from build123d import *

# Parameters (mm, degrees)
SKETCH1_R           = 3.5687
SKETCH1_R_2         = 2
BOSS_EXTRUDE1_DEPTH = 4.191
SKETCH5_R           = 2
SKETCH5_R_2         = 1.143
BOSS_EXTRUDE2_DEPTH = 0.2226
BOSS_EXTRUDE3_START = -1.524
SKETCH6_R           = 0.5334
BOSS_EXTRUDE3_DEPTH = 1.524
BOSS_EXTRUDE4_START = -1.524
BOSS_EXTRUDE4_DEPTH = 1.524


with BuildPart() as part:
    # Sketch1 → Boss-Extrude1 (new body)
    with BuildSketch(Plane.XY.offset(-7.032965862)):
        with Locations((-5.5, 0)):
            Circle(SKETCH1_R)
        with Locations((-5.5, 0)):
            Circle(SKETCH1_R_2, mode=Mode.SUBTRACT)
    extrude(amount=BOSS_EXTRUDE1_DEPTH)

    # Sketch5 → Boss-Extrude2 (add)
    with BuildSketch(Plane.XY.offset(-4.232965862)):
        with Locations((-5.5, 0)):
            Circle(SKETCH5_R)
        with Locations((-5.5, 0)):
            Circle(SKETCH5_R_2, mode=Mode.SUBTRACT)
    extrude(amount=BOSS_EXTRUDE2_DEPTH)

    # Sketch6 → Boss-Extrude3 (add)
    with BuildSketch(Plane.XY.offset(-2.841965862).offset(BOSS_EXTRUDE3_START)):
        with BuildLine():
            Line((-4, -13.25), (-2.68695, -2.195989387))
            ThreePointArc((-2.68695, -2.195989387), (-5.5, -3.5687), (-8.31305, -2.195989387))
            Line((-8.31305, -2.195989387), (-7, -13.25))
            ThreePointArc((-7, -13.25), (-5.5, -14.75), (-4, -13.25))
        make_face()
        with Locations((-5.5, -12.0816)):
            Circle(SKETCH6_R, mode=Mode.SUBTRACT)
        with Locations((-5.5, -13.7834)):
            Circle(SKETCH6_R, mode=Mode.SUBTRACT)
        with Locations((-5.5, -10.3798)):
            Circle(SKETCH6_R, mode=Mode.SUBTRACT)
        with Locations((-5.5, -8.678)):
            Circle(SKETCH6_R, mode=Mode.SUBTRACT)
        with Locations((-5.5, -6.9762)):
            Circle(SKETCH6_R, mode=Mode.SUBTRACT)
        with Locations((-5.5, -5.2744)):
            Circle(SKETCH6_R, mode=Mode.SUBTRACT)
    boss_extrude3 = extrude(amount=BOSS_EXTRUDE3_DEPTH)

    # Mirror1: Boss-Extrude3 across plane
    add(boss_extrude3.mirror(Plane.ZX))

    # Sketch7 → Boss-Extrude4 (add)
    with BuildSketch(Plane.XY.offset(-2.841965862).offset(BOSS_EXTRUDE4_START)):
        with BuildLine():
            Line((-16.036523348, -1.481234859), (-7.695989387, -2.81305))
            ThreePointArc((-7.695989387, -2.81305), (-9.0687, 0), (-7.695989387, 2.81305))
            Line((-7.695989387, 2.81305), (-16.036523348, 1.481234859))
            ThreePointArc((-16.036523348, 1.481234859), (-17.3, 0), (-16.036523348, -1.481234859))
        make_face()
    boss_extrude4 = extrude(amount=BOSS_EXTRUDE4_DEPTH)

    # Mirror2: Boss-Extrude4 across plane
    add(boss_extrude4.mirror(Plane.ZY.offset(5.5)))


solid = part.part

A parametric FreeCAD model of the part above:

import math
import FreeCAD as App
import Part
import Sketcher
from FreeCAD import Vector
Q = App.Units.Quantity

doc = App.newDocument("Part")
body = doc.addObject("PartDesign::Body", "Body")

# Sketch on XY plane
sketch1 = body.newObject("Sketcher::SketchObject", "Sketch")
sketch1.AttachmentSupport = (doc.getObject("XY_Plane"), [""])
sketch1.MapMode = "FlatFace"
sketch1.AttachmentOffset = App.Placement(Vector(0, 0, -7.032966), App.Rotation())
sketch1.addGeometry([
    Part.Circle(Vector(-5.5, 0, 0), Vector(0, 0, 1), 3.6),
    Part.Circle(Vector(-5.5, 0, 0), Vector(0, 0, 1), 2),
], False)
sketch1.addConstraint([
    Sketcher.Constraint("Coincident", 1, 3, 0, 3),
    Sketcher.Constraint("PointOnObject", 0, 3, -1),
    Sketcher.Constraint("Diameter", 0, Q("0.281 in")),
    Sketcher.Constraint("Diameter", 1, 4.0),
    Sketcher.Constraint("DistanceX", 0, 3, -1, 1, 5.5),
])
pad1 = body.newObject("PartDesign::Pad", "Pad")
pad1.Profile = sketch1
pad1.Length = Q("0.165 in")

# Sketch on XY plane
sketch2 = body.newObject("Sketcher::SketchObject", "Sketch001")
sketch2.AttachmentSupport = (doc.getObject("XY_Plane"), [""])
sketch2.MapMode = "FlatFace"
sketch2.AttachmentOffset = App.Placement(Vector(0, 0, -4.232966), App.Rotation())
sketch2.addGeometry([
    Part.Circle(Vector(-5.5, 0, 0), Vector(0, 0, 1), 2),
    Part.Circle(Vector(-5.5, 0, 0), Vector(0, 0, 1), 1.1),
], False)
sketch2.addConstraint([
    Sketcher.Constraint("Coincident", 1, 3, 0, 3),
    Sketcher.Constraint("PointOnObject", 0, 3, -1),
    Sketcher.Constraint("Diameter", 1, Q("0.09 in")),
    Sketcher.Constraint("Diameter", 0, 4.0),
    Sketcher.Constraint("DistanceX", 0, 3, -1, 1, 5.5),
])
pad2 = body.newObject("PartDesign::Pad", "Pad001")
pad2.Profile = sketch2
pad2.Length = 0.2226

# Sketch on XY plane
sketch3 = body.newObject("Sketcher::SketchObject", "Sketch002")
sketch3.AttachmentSupport = (doc.getObject("XY_Plane"), [""])
sketch3.MapMode = "FlatFace"
sketch3.AttachmentOffset = App.Placement(Vector(0, 0, -4.365966), App.Rotation())
sketch3.addGeometry([
    Part.LineSegment(Vector(-4, -13.2, 0), Vector(-2.7, -2.2, 0)),  # 0
    Part.ArcOfCircle(Part.Circle(Vector(-5.5, 0, 0), Vector(0, 0, 1), 3.6), math.radians(-142), math.radians(-38)),  # 1
    Part.LineSegment(Vector(-8.3, -2.2, 0), Vector(-7, -13.2, 0)),  # 2
    Part.ArcOfCircle(Part.Circle(Vector(-5.5, -13.2, 0), Vector(0, 0, 1), 1.5), math.radians(180), math.radians(360)),  # 3
    Part.Circle(Vector(-5.5, -13.8, 0), Vector(0, 0, 1), 0.5),  # 4
    Part.Circle(Vector(-5.5, -12.1, 0), Vector(0, 0, 1), 0.5),  # 5
    Part.Circle(Vector(-5.5, -10.4, 0), Vector(0, 0, 1), 0.5),  # 6
    Part.Circle(Vector(-5.5, -8.7, 0), Vector(0, 0, 1), 0.5),  # 7
    Part.Circle(Vector(-5.5, -7, 0), Vector(0, 0, 1), 0.5),  # 8
    Part.Circle(Vector(-5.5, -5.3, 0), Vector(0, 0, 1), 0.5),  # 9
], False)
sketch3.addConstraint([
    Sketcher.Constraint("Coincident", 0, 2, 1, 2),
    Sketcher.Constraint("Coincident", 1, 1, 2, 1),
    Sketcher.Constraint("Coincident", 2, 2, 3, 1),
    Sketcher.Constraint("Coincident", 3, 2, 0, 1),
    Sketcher.Constraint("Equal", 4, 5),
    Sketcher.Constraint("Equal", 5, 6),
    Sketcher.Constraint("Equal", 6, 7),
    Sketcher.Constraint("Equal", 7, 8),
    Sketcher.Constraint("Equal", 8, 9),
    Sketcher.Constraint("PointOnObject", 1, 3, -1),
    Sketcher.Constraint("Horizontal", 0, 2, 1, 1),
    Sketcher.Constraint("Horizontal", 3, 3, 2, 2),
    Sketcher.Constraint("Horizontal", 2, 2, 3, 2),
    Sketcher.Constraint("Vertical", 1, 3, 3, 3),
    Sketcher.Constraint("Vertical", 3, 3, 4, 3),
    Sketcher.Constraint("Vertical", 4, 3, 5, 3),
    Sketcher.Constraint("Vertical", 5, 3, 6, 3),
    Sketcher.Constraint("Vertical", 6, 3, 7, 3),
    Sketcher.Constraint("Vertical", 7, 3, 8, 3),
    Sketcher.Constraint("Vertical", 8, 3, 9, 3),
    Sketcher.Constraint("Diameter", 4, Q("0.042 in")),
    Sketcher.Constraint("Radius", 1, Q("0.1405 in")),
    Sketcher.Constraint("Radius", 3, 1.5),
    Sketcher.Constraint("DistanceY", 3, 3, 7, 3, Q("0.18 in")),
    Sketcher.Constraint("DistanceY", 4, 3, 3, 3, Q("0.021 in")),
    Sketcher.Constraint("DistanceY", 3, 3, 5, 3, Q("0.046 in")),
    Sketcher.Constraint("DistanceY", 5, 3, 6, 3, Q("0.067 in")),
    Sketcher.Constraint("DistanceY", 7, 3, 8, 3, Q("0.067 in")),
    Sketcher.Constraint("DistanceY", 8, 3, 9, 3, Q("0.067 in")),
    Sketcher.Constraint("DistanceX", 1, 1, 0, 2, Q("0.2215 in")),
    Sketcher.Constraint("DistanceX", 1, 3, -1, 1, 5.5),
    Sketcher.Constraint("DistanceY", 3, 3, -1, 1, 13.25),
])
pad3 = body.newObject("PartDesign::Pad", "Pad002")
pad3.Profile = sketch3
pad3.Length = Q("0.06 in")
doc.recompute()

mirrored = body.newObject("PartDesign::Mirrored", "Mirrored")
mirrored.Originals = [pad3]
mirrored.MirrorPlane = (doc.getObject("XZ_Plane"), [""])
body.Tip = mirrored

# Sketch on XY plane
sketch4 = body.newObject("Sketcher::SketchObject", "Sketch003")
sketch4.AttachmentSupport = (doc.getObject("XY_Plane"), [""])
sketch4.MapMode = "FlatFace"
sketch4.AttachmentOffset = App.Placement(Vector(0, 0, -4.365966), App.Rotation())
sketch4.addGeometry([
    Part.LineSegment(Vector(-16, -1.5, 0), Vector(-7.7, -2.8, 0)),
    Part.ArcOfCircle(Part.Circle(Vector(-5.5, 0, 0), Vector(0, 0, 1), 3.6), math.radians(128), math.radians(232)),
    Part.LineSegment(Vector(-7.7, 2.8, 0), Vector(-16, 1.5, 0)),
    Part.ArcOfCircle(Part.Circle(Vector(-15.8, 0, 0), Vector(0, 0, 1), 1.5), math.radians(99), math.radians(261)),
], False)
sketch4.addConstraint([
    Sketcher.Constraint("Coincident", 0, 2, 1, 2),
    Sketcher.Constraint("Coincident", 1, 1, 2, 1),
    Sketcher.Constraint("Tangent", 2, 2, 3, 1),
    Sketcher.Constraint("Tangent", 3, 2, 0, 1),
    Sketcher.Constraint("Symmetric", 0, 2, 1, 1, -1),
    Sketcher.Constraint("PointOnObject", 3, 3, -1),
    Sketcher.Constraint("Radius", 1, Q("0.1405 in")),
    Sketcher.Constraint("Radius", 3, 1.5),
    Sketcher.Constraint("DistanceY", 0, 2, 1, 1, Q("0.2215 in")),
    Sketcher.Constraint("DistanceX", 1, 3, -1, 1, 5.5),
    Sketcher.Constraint("DistanceX", 3, 3, -1, 1, 15.8),
])
pad4 = body.newObject("PartDesign::Pad", "Pad003")
pad4.Profile = sketch4
pad4.Length = Q("0.06 in")
doc.recompute()

datumplane = body.newObject("PartDesign::Plane", "DatumPlane")
datumplane.AttachmentSupport = (doc.getObject("YZ_Plane"), [""])
datumplane.MapMode = "FlatFace"
datumplane.AttachmentOffset = App.Placement(Vector(0, 0, -5.5), App.Rotation())
mirrored2 = body.newObject("PartDesign::Mirrored", "Mirrored001")
mirrored2.Originals = [pad4]
mirrored2.MirrorPlane = (datumplane, [""])
body.Tip = mirrored2

doc.recompute()
